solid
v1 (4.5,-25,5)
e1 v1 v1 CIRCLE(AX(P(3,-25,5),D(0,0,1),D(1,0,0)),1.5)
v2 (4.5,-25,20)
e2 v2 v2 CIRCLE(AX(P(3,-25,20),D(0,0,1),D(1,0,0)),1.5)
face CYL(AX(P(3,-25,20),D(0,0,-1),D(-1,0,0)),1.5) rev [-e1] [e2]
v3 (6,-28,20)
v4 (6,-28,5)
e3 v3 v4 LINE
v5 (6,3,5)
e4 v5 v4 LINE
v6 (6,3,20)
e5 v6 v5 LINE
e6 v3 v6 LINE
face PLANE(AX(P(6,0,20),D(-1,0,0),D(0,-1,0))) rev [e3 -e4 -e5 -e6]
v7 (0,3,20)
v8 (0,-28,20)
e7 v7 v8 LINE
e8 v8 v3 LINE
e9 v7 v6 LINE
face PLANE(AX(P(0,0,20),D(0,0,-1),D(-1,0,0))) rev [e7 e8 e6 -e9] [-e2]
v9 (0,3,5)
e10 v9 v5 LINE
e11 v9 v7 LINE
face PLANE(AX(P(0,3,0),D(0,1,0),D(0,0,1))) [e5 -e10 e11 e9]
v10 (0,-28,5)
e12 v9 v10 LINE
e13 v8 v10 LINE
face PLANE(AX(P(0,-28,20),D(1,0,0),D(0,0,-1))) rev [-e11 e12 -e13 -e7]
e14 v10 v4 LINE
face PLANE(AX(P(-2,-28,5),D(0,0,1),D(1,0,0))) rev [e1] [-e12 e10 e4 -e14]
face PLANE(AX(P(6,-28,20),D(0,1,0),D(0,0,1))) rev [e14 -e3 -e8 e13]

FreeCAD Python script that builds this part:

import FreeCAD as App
import Part
import Sketcher

V = App.Vector
Q = App.Units.Quantity


def add_polygon(sketch, points):
    """Adds a closed chain of lines whose ends are joined by coincident constraints."""
    first, n = sketch.GeometryCount, len(points)
    for a, b in zip(points, points[1:] + points[:1]):
        sketch.addGeometry(Part.LineSegment(App.Vector(*a, 0), App.Vector(*b, 0)), False)
    for i in range(n):
        sketch.addConstraint(Sketcher.Constraint("Coincident", first + i, 2, first + (i + 1) % n, 1))

doc = App.newDocument("Part")
body = doc.addObject("PartDesign::Body", "Body")

# Sketch on XY plane
sketch1 = body.newObject("Sketcher::SketchObject", "Sketch")
sketch1.AttachmentSupport = (doc.getObject("XY_Plane"), [""])
sketch1.MapMode = "FlatFace"
add_polygon(sketch1, [(0, 0), (0, -28), (6, -28), (6, 0)])  # lines 0-3
sketch1.addGeometry(Part.Circle(V(3, -25, 0), V(0, 0, 1), 1.5), False)  # 4
sketch1.addConstraint(Sketcher.Constraint("Vertical", 0))
sketch1.addConstraint(Sketcher.Constraint("Horizontal", 1))
sketch1.addConstraint(Sketcher.Constraint("Vertical", 2))
sketch1.addConstraint(Sketcher.Constraint("Horizontal", 3))
sketch1.addConstraint(Sketcher.Constraint("Coincident", 3, 2, -1, 1))
sketch1.addConstraint(Sketcher.Constraint("Diameter", 4, Q("3 mm")))
sketch1.addConstraint(Sketcher.Constraint("DistanceX", 1, 1, 1, 2, Q("6 mm")))
sketch1.addConstraint(Sketcher.Constraint("DistanceY", 0, 2, 0, 1, Q("28 mm")))
sketch1.addConstraint(Sketcher.Constraint("DistanceX", -1, 1, 4, 3, Q("3 mm")))
sketch1.addConstraint(Sketcher.Constraint("DistanceY", 4, 3, -1, 1, Q("25 mm")))
pad1 = body.newObject("PartDesign::Pad", "Pad")
pad1.Profile = sketch1
pad1.Length = 20

# Sketch on XZ plane
sketch2 = body.newObject("Sketcher::SketchObject", "Sketch001")
sketch2.AttachmentSupport = (doc.getObject("XZ_Plane"), [""])
sketch2.MapMode = "FlatFace"
add_polygon(sketch2, [(0, 0), (0, 20), (6, 20), (6, 0)])  # lines 0-3
sketch2.addConstraint(Sketcher.Constraint("Vertical", 0))
sketch2.addConstraint(Sketcher.Constraint("Horizontal", 1))
sketch2.addConstraint(Sketcher.Constraint("Vertical", 2))
sketch2.addConstraint(Sketcher.Constraint("Horizontal", 3))
sketch2.addConstraint(Sketcher.Constraint("Coincident", 3, 2, -1, 1))
sketch2.addConstraint(Sketcher.Constraint("DistanceX", 1, 1, 1, 2, Q("6 mm")))
sketch2.addConstraint(Sketcher.Constraint("DistanceY", 0, 1, 0, 2, Q("20 mm")))
pad2 = body.newObject("PartDesign::Pad", "Pad001")
pad2.Profile = sketch2
pad2.Length = 3
pad2.Reversed = True

# Sketch on YZ plane
sketch3 = body.newObject("Sketcher::SketchObject", "Sketch002")
sketch3.AttachmentSupport = (doc.getObject("YZ_Plane"), [""])
sketch3.MapMode = "FlatFace"
sketch3.AttachmentOffset = App.Placement(V(0, 0, 6), App.Rotation())
add_polygon(sketch3, [(3, 5), (-28, 5), (-28, 0), (3, 0)])  # lines 0-3
sketch3.addConstraint(Sketcher.Constraint("Horizontal", 0))
sketch3.addConstraint(Sketcher.Constraint("Vertical", 1))
sketch3.addConstraint(Sketcher.Constraint("Horizontal", 2))
sketch3.addConstraint(Sketcher.Constraint("Vertical", 3))
sketch3.addConstraint(Sketcher.Constraint("PointOnObject", 1, 2, -1))
sketch3.addConstraint(Sketcher.Constraint("DistanceX", 0, 2, 0, 1, Q("31 mm")))
sketch3.addConstraint(Sketcher.Constraint("DistanceY", 1, 2, 1, 1, Q("5 mm")))
sketch3.addConstraint(Sketcher.Constraint("DistanceX", 0, 2, -1, 1, Q("28 mm")))
pocket1 = body.newObject("PartDesign::Pocket", "Pocket")
pocket1.Profile = sketch3
pocket1.Length = 8

doc.recompute()
